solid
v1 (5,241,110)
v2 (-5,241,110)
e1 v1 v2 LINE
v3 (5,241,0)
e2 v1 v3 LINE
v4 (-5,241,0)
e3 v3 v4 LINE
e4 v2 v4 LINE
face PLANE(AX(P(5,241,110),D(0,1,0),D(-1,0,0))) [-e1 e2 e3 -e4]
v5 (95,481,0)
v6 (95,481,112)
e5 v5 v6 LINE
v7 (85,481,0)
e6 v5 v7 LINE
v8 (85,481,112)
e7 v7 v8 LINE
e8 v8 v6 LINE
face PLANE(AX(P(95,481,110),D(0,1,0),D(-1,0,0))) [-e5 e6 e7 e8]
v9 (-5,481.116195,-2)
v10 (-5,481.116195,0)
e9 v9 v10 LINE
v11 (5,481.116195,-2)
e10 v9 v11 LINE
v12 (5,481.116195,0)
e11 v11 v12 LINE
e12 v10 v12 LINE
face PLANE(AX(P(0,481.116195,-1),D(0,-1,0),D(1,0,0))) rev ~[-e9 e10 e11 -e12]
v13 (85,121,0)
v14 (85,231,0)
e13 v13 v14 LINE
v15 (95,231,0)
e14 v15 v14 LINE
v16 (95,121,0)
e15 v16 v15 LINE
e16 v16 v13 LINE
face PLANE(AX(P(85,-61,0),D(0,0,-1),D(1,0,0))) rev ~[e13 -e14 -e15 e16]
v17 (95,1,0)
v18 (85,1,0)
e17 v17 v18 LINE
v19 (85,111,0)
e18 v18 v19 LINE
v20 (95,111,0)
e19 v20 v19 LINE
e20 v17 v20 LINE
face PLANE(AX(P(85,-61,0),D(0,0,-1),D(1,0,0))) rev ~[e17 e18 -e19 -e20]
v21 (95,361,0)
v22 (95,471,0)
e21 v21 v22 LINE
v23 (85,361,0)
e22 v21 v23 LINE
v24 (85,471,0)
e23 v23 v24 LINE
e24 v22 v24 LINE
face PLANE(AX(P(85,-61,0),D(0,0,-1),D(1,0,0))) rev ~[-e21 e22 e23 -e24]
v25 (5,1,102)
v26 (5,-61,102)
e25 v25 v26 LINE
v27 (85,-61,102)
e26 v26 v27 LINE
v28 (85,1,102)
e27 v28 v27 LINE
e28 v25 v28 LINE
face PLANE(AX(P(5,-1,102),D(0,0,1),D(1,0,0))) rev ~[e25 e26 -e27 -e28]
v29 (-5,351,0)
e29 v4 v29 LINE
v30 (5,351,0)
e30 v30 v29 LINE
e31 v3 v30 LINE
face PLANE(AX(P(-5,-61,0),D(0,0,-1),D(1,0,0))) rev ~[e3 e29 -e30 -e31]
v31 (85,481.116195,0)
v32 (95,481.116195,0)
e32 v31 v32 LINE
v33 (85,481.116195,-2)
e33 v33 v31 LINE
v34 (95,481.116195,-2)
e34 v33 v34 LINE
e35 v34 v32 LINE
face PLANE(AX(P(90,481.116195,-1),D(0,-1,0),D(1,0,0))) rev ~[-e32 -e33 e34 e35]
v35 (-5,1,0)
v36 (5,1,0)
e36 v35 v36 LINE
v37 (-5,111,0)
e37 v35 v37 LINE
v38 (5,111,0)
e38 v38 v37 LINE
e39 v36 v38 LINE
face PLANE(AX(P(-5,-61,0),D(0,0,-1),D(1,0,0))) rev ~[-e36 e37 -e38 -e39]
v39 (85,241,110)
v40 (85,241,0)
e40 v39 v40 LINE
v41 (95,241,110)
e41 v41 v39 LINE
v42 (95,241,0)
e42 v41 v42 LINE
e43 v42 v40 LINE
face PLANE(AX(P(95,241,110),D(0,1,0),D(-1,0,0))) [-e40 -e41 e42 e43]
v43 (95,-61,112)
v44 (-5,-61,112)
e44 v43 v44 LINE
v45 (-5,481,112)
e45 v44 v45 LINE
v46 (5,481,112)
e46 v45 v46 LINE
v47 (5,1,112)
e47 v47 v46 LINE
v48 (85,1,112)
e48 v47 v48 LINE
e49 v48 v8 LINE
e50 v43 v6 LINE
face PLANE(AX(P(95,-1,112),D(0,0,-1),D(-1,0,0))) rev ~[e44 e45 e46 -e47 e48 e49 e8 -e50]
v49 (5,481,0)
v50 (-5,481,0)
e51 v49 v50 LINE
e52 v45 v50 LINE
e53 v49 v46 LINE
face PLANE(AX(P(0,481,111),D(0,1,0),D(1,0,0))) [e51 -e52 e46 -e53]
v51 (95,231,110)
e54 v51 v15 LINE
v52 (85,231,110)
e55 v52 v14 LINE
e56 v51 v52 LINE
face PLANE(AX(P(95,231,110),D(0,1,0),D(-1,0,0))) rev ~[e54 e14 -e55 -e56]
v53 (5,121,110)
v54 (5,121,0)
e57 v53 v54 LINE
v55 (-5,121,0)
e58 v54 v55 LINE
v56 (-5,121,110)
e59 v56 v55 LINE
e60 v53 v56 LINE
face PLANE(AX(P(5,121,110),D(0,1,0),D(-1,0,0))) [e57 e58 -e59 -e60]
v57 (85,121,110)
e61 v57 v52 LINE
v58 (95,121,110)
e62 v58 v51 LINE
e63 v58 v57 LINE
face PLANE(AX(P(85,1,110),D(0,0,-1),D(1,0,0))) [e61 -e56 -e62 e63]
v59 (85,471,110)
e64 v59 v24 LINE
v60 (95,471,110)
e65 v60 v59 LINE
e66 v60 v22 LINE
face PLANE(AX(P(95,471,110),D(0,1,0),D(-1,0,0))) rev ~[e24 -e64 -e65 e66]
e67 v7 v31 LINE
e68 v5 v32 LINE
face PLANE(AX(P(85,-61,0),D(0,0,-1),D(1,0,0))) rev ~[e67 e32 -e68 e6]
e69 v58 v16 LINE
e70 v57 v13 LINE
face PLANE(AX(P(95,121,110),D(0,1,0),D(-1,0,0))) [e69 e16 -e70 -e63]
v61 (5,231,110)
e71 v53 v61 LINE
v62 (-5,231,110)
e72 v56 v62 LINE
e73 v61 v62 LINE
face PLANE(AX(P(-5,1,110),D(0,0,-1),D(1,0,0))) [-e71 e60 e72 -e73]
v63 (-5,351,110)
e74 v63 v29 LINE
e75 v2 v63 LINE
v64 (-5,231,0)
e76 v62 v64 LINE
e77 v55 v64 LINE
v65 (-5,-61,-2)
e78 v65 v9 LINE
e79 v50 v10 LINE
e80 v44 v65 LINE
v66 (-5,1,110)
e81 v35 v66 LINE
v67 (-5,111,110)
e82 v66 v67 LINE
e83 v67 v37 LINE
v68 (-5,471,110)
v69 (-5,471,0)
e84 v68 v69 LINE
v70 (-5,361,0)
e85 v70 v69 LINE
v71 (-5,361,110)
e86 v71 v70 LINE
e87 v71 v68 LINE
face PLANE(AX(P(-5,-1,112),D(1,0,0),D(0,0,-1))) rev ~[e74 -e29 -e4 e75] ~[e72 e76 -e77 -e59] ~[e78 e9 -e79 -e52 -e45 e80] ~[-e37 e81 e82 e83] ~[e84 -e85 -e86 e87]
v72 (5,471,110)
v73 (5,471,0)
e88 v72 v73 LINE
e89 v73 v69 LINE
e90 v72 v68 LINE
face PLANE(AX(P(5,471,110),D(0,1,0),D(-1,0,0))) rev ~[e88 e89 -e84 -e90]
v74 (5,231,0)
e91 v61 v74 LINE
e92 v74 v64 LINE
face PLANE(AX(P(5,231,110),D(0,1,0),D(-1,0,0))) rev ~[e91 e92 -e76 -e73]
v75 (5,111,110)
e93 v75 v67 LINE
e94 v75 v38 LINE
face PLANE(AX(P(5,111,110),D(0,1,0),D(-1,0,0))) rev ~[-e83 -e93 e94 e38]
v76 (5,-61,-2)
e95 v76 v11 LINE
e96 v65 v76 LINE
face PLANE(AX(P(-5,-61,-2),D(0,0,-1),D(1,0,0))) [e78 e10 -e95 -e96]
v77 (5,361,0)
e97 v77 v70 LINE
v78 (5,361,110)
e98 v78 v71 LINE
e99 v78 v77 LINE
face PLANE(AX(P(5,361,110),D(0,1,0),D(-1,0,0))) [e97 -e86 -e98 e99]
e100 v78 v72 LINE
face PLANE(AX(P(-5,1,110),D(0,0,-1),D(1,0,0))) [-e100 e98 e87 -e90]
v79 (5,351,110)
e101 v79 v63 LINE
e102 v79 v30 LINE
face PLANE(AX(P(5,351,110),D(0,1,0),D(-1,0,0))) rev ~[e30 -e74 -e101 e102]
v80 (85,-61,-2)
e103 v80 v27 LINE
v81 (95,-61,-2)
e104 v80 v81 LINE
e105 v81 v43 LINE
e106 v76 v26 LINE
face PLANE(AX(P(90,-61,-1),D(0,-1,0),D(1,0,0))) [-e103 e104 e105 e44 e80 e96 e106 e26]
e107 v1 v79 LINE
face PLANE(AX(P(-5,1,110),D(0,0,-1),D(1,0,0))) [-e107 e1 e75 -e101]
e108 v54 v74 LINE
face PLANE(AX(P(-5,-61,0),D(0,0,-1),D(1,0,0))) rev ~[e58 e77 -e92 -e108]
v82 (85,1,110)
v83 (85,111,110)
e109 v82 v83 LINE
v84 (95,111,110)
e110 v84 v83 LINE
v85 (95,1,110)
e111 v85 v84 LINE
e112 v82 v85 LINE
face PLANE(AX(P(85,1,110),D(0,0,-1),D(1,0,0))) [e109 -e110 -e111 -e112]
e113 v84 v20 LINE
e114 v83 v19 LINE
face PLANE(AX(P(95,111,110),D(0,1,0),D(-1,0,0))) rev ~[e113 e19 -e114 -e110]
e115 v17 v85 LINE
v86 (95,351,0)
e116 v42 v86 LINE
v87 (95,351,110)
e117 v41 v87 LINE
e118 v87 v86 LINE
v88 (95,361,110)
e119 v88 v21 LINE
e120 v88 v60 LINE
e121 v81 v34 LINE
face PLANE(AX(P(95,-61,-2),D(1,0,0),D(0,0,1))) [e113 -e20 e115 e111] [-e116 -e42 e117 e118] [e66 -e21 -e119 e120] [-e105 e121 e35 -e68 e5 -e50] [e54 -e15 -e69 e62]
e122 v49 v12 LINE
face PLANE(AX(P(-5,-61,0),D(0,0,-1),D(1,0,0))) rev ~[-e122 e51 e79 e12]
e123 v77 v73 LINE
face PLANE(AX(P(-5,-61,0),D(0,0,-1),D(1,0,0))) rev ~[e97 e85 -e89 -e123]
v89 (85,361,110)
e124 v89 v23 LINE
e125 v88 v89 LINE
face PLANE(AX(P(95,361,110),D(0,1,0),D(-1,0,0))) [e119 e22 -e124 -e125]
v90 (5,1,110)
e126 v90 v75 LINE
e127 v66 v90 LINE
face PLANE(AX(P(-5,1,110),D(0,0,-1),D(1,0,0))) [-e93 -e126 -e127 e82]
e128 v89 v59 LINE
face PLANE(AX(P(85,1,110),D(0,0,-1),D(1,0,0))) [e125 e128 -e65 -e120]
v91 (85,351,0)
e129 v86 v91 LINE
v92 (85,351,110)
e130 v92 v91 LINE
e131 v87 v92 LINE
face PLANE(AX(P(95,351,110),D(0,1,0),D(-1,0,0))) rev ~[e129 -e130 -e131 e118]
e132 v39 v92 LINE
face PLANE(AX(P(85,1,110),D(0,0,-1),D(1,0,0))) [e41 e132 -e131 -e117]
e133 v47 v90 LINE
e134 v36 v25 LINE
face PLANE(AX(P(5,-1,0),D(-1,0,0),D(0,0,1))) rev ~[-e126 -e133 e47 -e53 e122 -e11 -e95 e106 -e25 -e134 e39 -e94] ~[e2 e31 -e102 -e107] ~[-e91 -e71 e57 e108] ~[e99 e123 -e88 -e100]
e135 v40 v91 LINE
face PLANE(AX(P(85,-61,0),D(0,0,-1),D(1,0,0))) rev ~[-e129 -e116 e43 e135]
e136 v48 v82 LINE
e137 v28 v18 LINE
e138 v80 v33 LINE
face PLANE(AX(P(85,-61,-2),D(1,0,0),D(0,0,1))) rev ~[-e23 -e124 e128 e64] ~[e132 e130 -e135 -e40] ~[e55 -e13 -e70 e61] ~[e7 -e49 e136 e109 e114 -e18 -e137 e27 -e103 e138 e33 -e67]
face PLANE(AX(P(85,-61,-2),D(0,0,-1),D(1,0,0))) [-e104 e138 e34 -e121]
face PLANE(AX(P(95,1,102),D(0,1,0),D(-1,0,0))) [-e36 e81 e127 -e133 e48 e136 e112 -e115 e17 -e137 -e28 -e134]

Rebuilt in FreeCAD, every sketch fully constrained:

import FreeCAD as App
import Part
import Sketcher


def add_polygon(sketch, points):
    """Adds a closed chain of lines whose ends are joined by coincident constraints."""
    first, n = sketch.GeometryCount, len(points)
    for a, b in zip(points, points[1:] + points[:1]):
        sketch.addGeometry(Part.LineSegment(App.Vector(*a, 0), App.Vector(*b, 0)), False)
    for i in range(n):
        sketch.addConstraint(Sketcher.Constraint("Coincident", first + i, 2, first + (i + 1) % n, 1))

doc = App.newDocument("Part")
body = doc.addObject("PartDesign::Body", "Body")

# Sketch on XY plane
sketch1 = doc.addObject("Sketcher::SketchObject", "Sketch")
body.addObject(sketch1)
sketch1.AttachmentSupport = (doc.XY_Plane, [""])
sketch1.MapMode = "FlatFace"
add_polygon(sketch1, [(-5, 1), (-5, -1), (5, -1), (5, 1)])  # lines 0-3
sketch1.addConstraint([
    Sketcher.Constraint("Vertical", 0),
    Sketcher.Constraint("Horizontal", 1),
    Sketcher.Constraint("Vertical", 2),
    Sketcher.Constraint("Horizontal", 3),
    Sketcher.Constraint("Symmetric", 0, 2, 2, 2, -1, 1),
    Sketcher.Constraint("DistanceX", 1, 1, 1, 2, 10.0),
    Sketcher.Constraint("DistanceY", 0, 2, 0, 1, 2.0),
])
pad1 = doc.addObject("PartDesign::Pad", "Pad")
body.addObject(pad1)
pad1.Profile = sketch1
pad1.Length = 112

# Sketch on XZ plane
sketch2 = doc.addObject("Sketcher::SketchObject", "Sketch001")
body.addObject(sketch2)
sketch2.AttachmentSupport = (doc.XZ_Plane, [""])
sketch2.MapMode = "FlatFace"
sketch2.AttachmentOffset = App.Placement(App.Vector(0, 0, -1), App.Rotation())
add_polygon(sketch2, [(-5, 110), (-5, 112), (5, 112), (5, 110)])  # lines 0-3
sketch2.addConstraint([
    Sketcher.Constraint("Vertical", 0),
    Sketcher.Constraint("Horizontal", 1),
    Sketcher.Constraint("Vertical", 2),
    Sketcher.Constraint("Horizontal", 3),
    Sketcher.Constraint("DistanceX", 1, 1, 1, 2, 10.0),
    Sketcher.Constraint("DistanceY", 0, 1, 0, 2, 2.0),
    Sketcher.Constraint("DistanceX", 0, 2, -1, 1, 5.0),
    Sketcher.Constraint("DistanceY", -1, 1, 0, 2, 112.0),
])
pad2 = doc.addObject("PartDesign::Pad", "Pad001")
body.addObject(pad2)
pad2.Profile = sketch2
pad2.Length = 480
pad2.Reversed = True

# Sketch on YZ plane
sketch3 = doc.addObject("Sketcher::SketchObject", "Sketch002")
body.addObject(sketch3)
sketch3.AttachmentSupport = (doc.YZ_Plane, [""])
sketch3.MapMode = "FlatFace"
sketch3.AttachmentOffset = App.Placement(App.Vector(0, 0, 5), App.Rotation())
add_polygon(sketch3, [(1, 112), (-1, 112), (-1, 102), (1, 102)])  # lines 0-3
sketch3.addConstraint([
    Sketcher.Constraint("Horizontal", 0),
    Sketcher.Constraint("Vertical", 1),
    Sketcher.Constraint("Horizontal", 2),
    Sketcher.Constraint("Vertical", 3),
    Sketcher.Constraint("DistanceX", 0, 2, 0, 1, 2.0),
    Sketcher.Constraint("DistanceY", 1, 2, 1, 1, 10.0),
    Sketcher.Constraint("DistanceX", 0, 2, -1, 1, 1.0),
    Sketcher.Constraint("DistanceY", -1, 1, 0, 2, 112.0),
])
pad3 = doc.addObject("PartDesign::Pad", "Pad002")
body.addObject(pad3)
pad3.Profile = sketch3
pad3.Length = 90

# Sketch on XY plane
sketch4 = doc.addObject("Sketcher::SketchObject", "Sketch003")
body.addObject(sketch4)
sketch4.AttachmentSupport = (doc.XY_Plane, [""])
sketch4.MapMode = "FlatFace"
sketch4.AttachmentOffset = App.Placement(App.Vector(0, 0, 102), App.Rotation())
add_polygon(sketch4, [(95, 1), (95, -1), (85, -1), (85, 1)])  # lines 0-3
sketch4.addConstraint([
    Sketcher.Constraint("Vertical", 0),
    Sketcher.Constraint("Horizontal", 1),
    Sketcher.Constraint("Vertical", 2),
    Sketcher.Constraint("Horizontal", 3),
    Sketcher.Constraint("DistanceX", 1, 2, 1, 1, 10.0),
    Sketcher.Constraint("DistanceY", 0, 2, 0, 1, 2.0),
    Sketcher.Constraint("DistanceX", -1, 1, 0, 2, 95.0),
    Sketcher.Constraint("DistanceY", 0, 2, -1, 1, 1.0),
])
pad4 = doc.addObject("PartDesign::Pad", "Pad003")
body.addObject(pad4)
pad4.Profile = sketch4
pad4.Length = 102
pad4.Reversed = True

# Sketch on XZ plane
sketch5 = doc.addObject("Sketcher::SketchObject", "Sketch004")
body.addObject(sketch5)
sketch5.AttachmentSupport = (doc.XZ_Plane, [""])
sketch5.MapMode = "FlatFace"
sketch5.AttachmentOffset = App.Placement(App.Vector(0, 0, -1), App.Rotation())
add_polygon(sketch5, [(85, 110), (85, 112), (95, 112), (95, 110)])  # lines 0-3
sketch5.addConstraint([
    Sketcher.Constraint("Vertical", 0),
    Sketcher.Constraint("Horizontal", 1),
    Sketcher.Constraint("Vertical", 2),
    Sketcher.Constraint("Horizontal", 3),
    Sketcher.Constraint("DistanceX", 1, 1, 1, 2, 10.0),
    Sketcher.Constraint("DistanceY", 0, 1, 0, 2, 2.0),
    Sketcher.Constraint("DistanceX", -1, 1, 0, 2, 85.0),
    Sketcher.Constraint("DistanceY", -1, 1, 0, 2, 112.0),
])
pad5 = doc.addObject("PartDesign::Pad", "Pad004")
body.addObject(pad5)
pad5.Profile = sketch5
pad5.Length = 480
pad5.Reversed = True

# Sketch on XY plane
sketch6 = doc.addObject("Sketcher::SketchObject", "Sketch005")
body.addObject(sketch6)
sketch6.AttachmentSupport = (doc.XY_Plane, [""])
sketch6.MapMode = "FlatFace"
sketch6.AttachmentOffset = App.Placement(App.Vector(0, 0, 110), App.Rotation())
add_polygon(sketch6, [(95, 121), (95, 111), (85, 111), (85, 121)])  # lines 0-3
add_polygon(sketch6, [(5, 121), (5, 111), (-5, 111), (-5, 121)])  # lines 4-7
sketch6.addConstraint([
    Sketcher.Constraint("Vertical", 0),
    Sketcher.Constraint("Horizontal", 1),
    Sketcher.Constraint("Vertical", 2),
    Sketcher.Constraint("Horizontal", 3),
    Sketcher.Constraint("Vertical", 4),
    Sketcher.Constraint("Horizontal", 5),
    Sketcher.Constraint("Vertical", 6),
    Sketcher.Constraint("Horizontal", 7),
    Sketcher.Constraint("Horizontal", 1, 2, 4, 2),
    Sketcher.Constraint("Horizontal", 3, 2, 6, 2),
    Sketcher.Constraint("Equal", 3, 5),
    Sketcher.Constraint("Equal", 7, 0),
    Sketcher.Constraint("DistanceX", 1, 2, 1, 1, 10.0),
    Sketcher.Constraint("DistanceX", -1, 1, 0, 2, 95.0),
    Sketcher.Constraint("DistanceY", -1, 1, 0, 2, 111.0),
    Sketcher.Constraint("DistanceX", -1, 1, 4, 2, 5.0),
])
pad6 = doc.addObject("PartDesign::Pad", "Pad005")
body.addObject(pad6)
pad6.Profile = sketch6
pad6.Length = 110
pad6.Reversed = True

# Sketch on XY plane
sketch7 = doc.addObject("Sketcher::SketchObject", "Sketch006")
body.addObject(sketch7)
sketch7.AttachmentSupport = (doc.XY_Plane, [""])
sketch7.MapMode = "FlatFace"
sketch7.AttachmentOffset = App.Placement(App.Vector(0, 0, 110), App.Rotation())
add_polygon(sketch7, [(95, 241), (95, 231), (85, 231), (85, 241)])  # lines 0-3
add_polygon(sketch7, [(5, 241), (5, 231), (-5, 231), (-5, 241)])  # lines 4-7
sketch7.addConstraint([
    Sketcher.Constraint("Vertical", 0),
    Sketcher.Constraint("Horizontal", 1),
    Sketcher.Constraint("Vertical", 2),
    Sketcher.Constraint("Horizontal", 3),
    Sketcher.Constraint("Vertical", 4),
    Sketcher.Constraint("Horizontal", 5),
    Sketcher.Constraint("Vertical", 6),
    Sketcher.Constraint("Horizontal", 7),
    Sketcher.Constraint("Horizontal", 1, 2, 4, 2),
    Sketcher.Constraint("Horizontal", 3, 2, 6, 2),
    Sketcher.Constraint("Equal", 3, 5),
    Sketcher.Constraint("Equal", 7, 0),
    Sketcher.Constraint("DistanceX", 1, 2, 1, 1, 10.0),
    Sketcher.Constraint("DistanceX", -1, 1, 0, 2, 95.0),
    Sketcher.Constraint("DistanceY", -1, 1, 0, 2, 231.0),
    Sketcher.Constraint("DistanceX", -1, 1, 4, 2, 5.0),
])
pad7 = doc.addObject("PartDesign::Pad", "Pad006")
body.addObject(pad7)
pad7.Profile = sketch7
pad7.Length = 110
pad7.Reversed = True

# Sketch on XY plane
sketch8 = doc.addObject("Sketcher::SketchObject", "Sketch007")
body.addObject(sketch8)
sketch8.AttachmentSupport = (doc.XY_Plane, [""])
sketch8.MapMode = "FlatFace"
sketch8.AttachmentOffset = App.Placement(App.Vector(0, 0, 110), App.Rotation())
add_polygon(sketch8, [(95, 361), (95, 351), (85, 351), (85, 361)])  # lines 0-3
add_polygon(sketch8, [(5, 361), (5, 351), (-5, 351), (-5, 361)])  # lines 4-7
sketch8.addConstraint([
    Sketcher.Constraint("Vertical", 0),
    Sketcher.Constraint("Horizontal", 1),
    Sketcher.Constraint("Vertical", 2),
    Sketcher.Constraint("Horizontal", 3),
    Sketcher.Constraint("Vertical", 4),
    Sketcher.Constraint("Horizontal", 5),
    Sketcher.Constraint("Vertical", 6),
    Sketcher.Constraint("Horizontal", 7),
    Sketcher.Constraint("Horizontal", 1, 2, 4, 2),
    Sketcher.Constraint("Horizontal", 3, 2, 6, 2),
    Sketcher.Constraint("Equal", 3, 5),
    Sketcher.Constraint("Equal", 7, 0),
    Sketcher.Constraint("DistanceX", 1, 2, 1, 1, 10.0),
    Sketcher.Constraint("DistanceX", -1, 1, 0, 2, 95.0),
    Sketcher.Constraint("DistanceY", -1, 1, 0, 2, 351.0),
    Sketcher.Constraint("DistanceX", -1, 1, 4, 2, 5.0),
])
pad8 = doc.addObject("PartDesign::Pad", "Pad007")
body.addObject(pad8)
pad8.Profile = sketch8
pad8.Length = 110
pad8.Reversed = True

# Sketch on XY plane
sketch9 = doc.addObject("Sketcher::SketchObject", "Sketch008")
body.addObject(sketch9)
sketch9.AttachmentSupport = (doc.XY_Plane, [""])
sketch9.MapMode = "FlatFace"
sketch9.AttachmentOffset = App.Placement(App.Vector(0, 0, 110), App.Rotation())
add_polygon(sketch9, [(95, 481), (95, 471), (85, 471), (85, 481)])  # lines 0-3
add_polygon(sketch9, [(5, 481), (5, 471), (-5, 471), (-5, 481)])  # lines 4-7
sketch9.addConstraint([
    Sketcher.Constraint("Vertical", 0),
    Sketcher.Constraint("Horizontal", 1),
    Sketcher.Constraint("Vertical", 2),
    Sketcher.Constraint("Horizontal", 3),
    Sketcher.Constraint("Vertical", 4),
    Sketcher.Constraint("Horizontal", 5),
    Sketcher.Constraint("Vertical", 6),
    Sketcher.Constraint("Horizontal", 7),
    Sketcher.Constraint("Horizontal", 1, 2, 4, 2),
    Sketcher.Constraint("Horizontal", 3, 2, 6, 2),
    Sketcher.Constraint("Equal", 3, 5),
    Sketcher.Constraint("Equal", 7, 0),
    Sketcher.Constraint("DistanceX", 1, 2, 1, 1, 10.0),
    Sketcher.Constraint("DistanceX", -1, 1, 0, 2, 95.0),
    Sketcher.Constraint("DistanceY", -1, 1, 0, 2, 471.0),
    Sketcher.Constraint("DistanceX", -1, 1, 4, 2, 5.0),
])
pad9 = doc.addObject("PartDesign::Pad", "Pad008")
body.addObject(pad9)
pad9.Profile = sketch9
pad9.Length = 110
pad9.Reversed = True

# Sketch on XZ plane
sketch10 = doc.addObject("Sketcher::SketchObject", "Sketch009")
body.addObject(sketch10)
sketch10.AttachmentSupport = (doc.XZ_Plane, [""])
sketch10.MapMode = "FlatFace"
sketch10.AttachmentOffset = App.Placement(App.Vector(0, 0, 1), App.Rotation())
add_polygon(sketch10, [(-5, 112), (-5, 0), (5, 0), (5, 102), (85, 102), (85, 0), (95, 0), (95, 112)])  # lines 0-7
sketch10.addConstraint([
    Sketcher.Constraint("Vertical", 0),
    Sketcher.Constraint("Horizontal", 1),
    Sketcher.Constraint("Vertical", 2),
    Sketcher.Constraint("Horizontal", 3),
    Sketcher.Constraint("Vertical", 4),
    Sketcher.Constraint("Horizontal", 5),
    Sketcher.Constraint("Vertical", 6),
    Sketcher.Constraint("Horizontal", 7),
    Sketcher.Constraint("Symmetric", 0, 2, 1, 2, -1, 1),
    Sketcher.Constraint("PointOnObject", 4, 2, -1),
    Sketcher.Constraint("Equal", 1, 5),
    Sketcher.Constraint("DistanceX", 1, 1, 1, 2, 10.0),
    Sketcher.Constraint("DistanceX", 3, 1, 3, 2, 80.0),
    Sketcher.Constraint("DistanceY", 0, 2, 0, 1, 112.0),
    Sketcher.Constraint("DistanceY", 2, 1, 2, 2, 102.0),
])
pad10 = doc.addObject("PartDesign::Pad", "Pad009")
body.addObject(pad10)
pad10.Profile = sketch10
pad10.Length = 60

# Sketch on XZ plane
sketch11 = doc.addObject("Sketcher::SketchObject", "Sketch010")
body.addObject(sketch11)
sketch11.AttachmentSupport = (doc.XZ_Plane, [""])
sketch11.MapMode = "FlatFace"
sketch11.AttachmentOffset = App.Placement(App.Vector(0, 0, 61), App.Rotation())
add_polygon(sketch11, [(85, 0), (85, -2), (95, -2), (95, 0)])  # lines 0-3
add_polygon(sketch11, [(-5, 0), (-5, -2), (5, -2), (5, 0)])  # lines 4-7
sketch11.addConstraint([
    Sketcher.Constraint("Vertical", 0),
    Sketcher.Constraint("Horizontal", 1),
    Sketcher.Constraint("Vertical", 2),
    Sketcher.Constraint("Horizontal", 3),
    Sketcher.Constraint("Vertical", 4),
    Sketcher.Constraint("Horizontal", 5),
    Sketcher.Constraint("Vertical", 6),
    Sketcher.Constraint("Horizontal", 7),
    Sketcher.Constraint("Symmetric", 6, 2, 7, 2, -1, 1),
    Sketcher.Constraint("PointOnObject", 2, 2, -1),
    Sketcher.Constraint("Horizontal", 1, 2, 4, 2),
    Sketcher.Constraint("Equal", 3, 5),
    Sketcher.Constraint("DistanceX", 1, 1, 1, 2, 10.0),
    Sketcher.Constraint("DistanceY", 0, 2, 0, 1, 2.0),
    Sketcher.Constraint("DistanceX", -1, 1, 0, 2, 85.0),
])
pad11 = doc.addObject("PartDesign::Pad", "Pad010")
body.addObject(pad11)
pad11.Profile = sketch11
pad11.Length = 542.116195
pad11.Reversed = True

doc.recompute()
